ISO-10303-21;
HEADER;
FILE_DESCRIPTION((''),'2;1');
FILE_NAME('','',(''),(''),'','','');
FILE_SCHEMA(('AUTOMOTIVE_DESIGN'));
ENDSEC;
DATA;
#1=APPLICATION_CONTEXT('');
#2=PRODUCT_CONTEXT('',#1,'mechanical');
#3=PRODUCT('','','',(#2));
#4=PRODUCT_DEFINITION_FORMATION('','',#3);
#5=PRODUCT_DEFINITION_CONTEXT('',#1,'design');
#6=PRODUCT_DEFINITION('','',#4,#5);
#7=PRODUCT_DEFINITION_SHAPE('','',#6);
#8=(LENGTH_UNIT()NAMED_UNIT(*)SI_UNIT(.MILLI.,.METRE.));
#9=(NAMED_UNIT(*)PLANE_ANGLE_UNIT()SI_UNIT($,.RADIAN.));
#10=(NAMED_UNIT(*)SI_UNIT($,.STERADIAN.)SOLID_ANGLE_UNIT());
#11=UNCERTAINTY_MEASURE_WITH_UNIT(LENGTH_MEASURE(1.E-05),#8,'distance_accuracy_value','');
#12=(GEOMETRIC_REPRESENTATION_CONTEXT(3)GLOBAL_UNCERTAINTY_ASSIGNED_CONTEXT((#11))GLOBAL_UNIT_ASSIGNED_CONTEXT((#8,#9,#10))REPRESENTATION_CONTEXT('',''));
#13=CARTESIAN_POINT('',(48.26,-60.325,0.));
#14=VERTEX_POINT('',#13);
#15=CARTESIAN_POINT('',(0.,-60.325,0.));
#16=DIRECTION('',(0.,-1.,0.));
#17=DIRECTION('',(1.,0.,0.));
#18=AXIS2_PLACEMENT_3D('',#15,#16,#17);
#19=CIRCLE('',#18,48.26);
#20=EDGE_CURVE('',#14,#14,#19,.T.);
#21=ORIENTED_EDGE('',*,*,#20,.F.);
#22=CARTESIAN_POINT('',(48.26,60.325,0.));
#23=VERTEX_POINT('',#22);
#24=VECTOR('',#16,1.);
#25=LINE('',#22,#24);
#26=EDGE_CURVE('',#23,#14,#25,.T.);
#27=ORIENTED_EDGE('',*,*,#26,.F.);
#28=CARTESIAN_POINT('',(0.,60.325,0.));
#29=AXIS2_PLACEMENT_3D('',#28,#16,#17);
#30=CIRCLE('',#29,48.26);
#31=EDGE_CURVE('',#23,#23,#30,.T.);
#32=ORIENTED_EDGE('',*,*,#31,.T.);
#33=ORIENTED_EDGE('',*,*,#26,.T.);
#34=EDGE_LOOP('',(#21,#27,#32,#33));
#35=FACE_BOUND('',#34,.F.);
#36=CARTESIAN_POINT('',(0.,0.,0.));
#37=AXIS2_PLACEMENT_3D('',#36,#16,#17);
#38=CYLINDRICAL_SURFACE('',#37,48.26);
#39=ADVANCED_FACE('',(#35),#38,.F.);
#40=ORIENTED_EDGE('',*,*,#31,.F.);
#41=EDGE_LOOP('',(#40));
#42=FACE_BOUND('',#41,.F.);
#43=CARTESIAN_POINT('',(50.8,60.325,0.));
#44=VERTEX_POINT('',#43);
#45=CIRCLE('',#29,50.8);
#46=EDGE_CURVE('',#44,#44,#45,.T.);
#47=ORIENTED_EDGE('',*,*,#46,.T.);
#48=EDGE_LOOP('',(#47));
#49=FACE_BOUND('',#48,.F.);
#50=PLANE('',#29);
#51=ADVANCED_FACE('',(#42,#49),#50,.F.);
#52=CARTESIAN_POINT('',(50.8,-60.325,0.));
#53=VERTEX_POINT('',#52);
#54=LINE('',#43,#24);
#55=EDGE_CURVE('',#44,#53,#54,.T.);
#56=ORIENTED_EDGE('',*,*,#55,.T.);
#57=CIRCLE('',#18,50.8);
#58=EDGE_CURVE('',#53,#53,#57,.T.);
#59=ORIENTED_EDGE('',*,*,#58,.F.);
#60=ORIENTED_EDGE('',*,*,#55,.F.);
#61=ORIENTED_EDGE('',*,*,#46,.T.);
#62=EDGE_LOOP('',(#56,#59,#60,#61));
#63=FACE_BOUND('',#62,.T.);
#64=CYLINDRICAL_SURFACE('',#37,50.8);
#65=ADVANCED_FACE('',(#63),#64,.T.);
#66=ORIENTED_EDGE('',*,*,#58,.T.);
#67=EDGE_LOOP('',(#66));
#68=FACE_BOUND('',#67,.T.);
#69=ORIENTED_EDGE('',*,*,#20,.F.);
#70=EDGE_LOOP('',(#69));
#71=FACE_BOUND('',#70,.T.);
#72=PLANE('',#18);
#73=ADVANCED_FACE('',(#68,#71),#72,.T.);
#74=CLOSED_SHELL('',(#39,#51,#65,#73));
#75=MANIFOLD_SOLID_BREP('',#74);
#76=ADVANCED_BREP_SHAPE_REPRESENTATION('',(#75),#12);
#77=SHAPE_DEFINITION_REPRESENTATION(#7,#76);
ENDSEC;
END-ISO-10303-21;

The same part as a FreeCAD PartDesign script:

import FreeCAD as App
import Part
import Sketcher

V = App.Vector
Q = App.Units.Quantity


def faces_at(feature, points):
    """Names of the faces that lie closest to the given points."""
    faces = feature.Shape.Faces
    near = lambda p: min(range(len(faces)), key=lambda i: faces[i].distToShape(Part.Vertex(*p))[0])
    return sorted({f"Face{near(p) + 1}" for p in points})

doc = App.newDocument("Part")
body = doc.addObject("PartDesign::Body", "Body")

sketch1 = doc.addObject("Sketcher::SketchObject", "Sketch")
body.addObject(sketch1)
sketch1.AttachmentSupport = (doc.XZ_Plane, [""])
sketch1.MapMode = "FlatFace"
sketch1.addGeometry(Part.Circle(V(0, 0, 0), V(0, 0, 1), 51), False)
sketch1.addConstraint([
    Sketcher.Constraint("Coincident", 0, 3, -1, 1),
    Sketcher.Constraint("Diameter", 0, Q("4 in")),
])
pad1 = doc.addObject("PartDesign::Pad", "Pad")
body.addObject(pad1)
pad1.Profile = sketch1
pad1.Length = Q("4.75 in")
pad1.Midplane = True
doc.recompute()

thickness = doc.addObject("PartDesign::Thickness", "Thickness")
body.addObject(thickness)
thickness.Base = (pad1, faces_at(pad1, [(0, 60.325, 0), (0, -60.325, 0)]))
thickness.Value = Q("0.1 in")
thickness.Reversed = True
thickness.Join = "Arc"

doc.recompute()
